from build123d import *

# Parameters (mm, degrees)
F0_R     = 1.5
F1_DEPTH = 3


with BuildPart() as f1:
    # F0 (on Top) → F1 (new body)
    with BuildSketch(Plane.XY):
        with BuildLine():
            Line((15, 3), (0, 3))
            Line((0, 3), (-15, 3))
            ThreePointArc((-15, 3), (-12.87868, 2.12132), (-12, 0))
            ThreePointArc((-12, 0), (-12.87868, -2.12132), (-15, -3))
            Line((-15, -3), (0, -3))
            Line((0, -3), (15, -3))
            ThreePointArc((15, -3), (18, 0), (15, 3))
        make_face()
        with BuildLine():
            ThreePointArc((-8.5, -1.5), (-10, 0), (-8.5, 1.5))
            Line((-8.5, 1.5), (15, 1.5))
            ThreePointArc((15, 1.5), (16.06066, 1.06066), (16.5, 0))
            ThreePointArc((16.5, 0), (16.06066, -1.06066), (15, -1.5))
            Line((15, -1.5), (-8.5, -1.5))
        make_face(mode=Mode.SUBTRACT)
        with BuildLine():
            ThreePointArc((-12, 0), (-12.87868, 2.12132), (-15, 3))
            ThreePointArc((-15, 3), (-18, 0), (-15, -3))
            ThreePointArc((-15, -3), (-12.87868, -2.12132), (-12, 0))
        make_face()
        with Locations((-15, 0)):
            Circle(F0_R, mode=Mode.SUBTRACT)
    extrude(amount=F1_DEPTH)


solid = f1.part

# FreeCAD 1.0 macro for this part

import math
import FreeCAD as App
import Part
import Sketcher

V = App.Vector

doc = App.newDocument("Part")
body = doc.addObject("PartDesign::Body", "Body")

# Sketch on XY plane
sketch1 = body.newObject("Sketcher::SketchObject", "Sketch")
sketch1.AttachmentSupport = (doc.getObject("XY_Plane"), [""])
sketch1.MapMode = "FlatFace"
sketch1.addGeometry([
    Part.LineSegment(V(15, 3, 0), V(-15, 3, 0)),  # 0
    Part.ArcOfCircle(Part.Circle(V(-15, 0, 0), V(0, 0, 1), 3), math.radians(90), math.radians(270)),  # 1
    Part.LineSegment(V(-15, -3, 0), V(15, -3, 0)),  # 2
    Part.ArcOfCircle(Part.Circle(V(15, 0, 0), V(0, 0, 1), 3), math.radians(-90), math.radians(90)),  # 3
    Part.Circle(V(-15, 0, 0), V(0, 0, 1), 1.5),  # 4
    Part.LineSegment(V(15, -1.5, 0), V(-8.5, -1.5, 0)),  # 5
    Part.ArcOfCircle(Part.Circle(V(-8.5, 0, 0), V(0, 0, 1), 1.5), math.radians(90), math.radians(270)),  # 6
    Part.LineSegment(V(-8.5, 1.5, 0), V(15, 1.5, 0)),  # 7
    Part.ArcOfCircle(Part.Circle(V(15, 0, 0), V(0, 0, 1), 1.5), math.radians(0), math.radians(90)),  # 8
    Part.ArcOfCircle(Part.Circle(V(15, 0, 0), V(0, 0, 1), 1.5), math.radians(-90), math.radians(0)),  # 9
], False)
sketch1.addConstraint([
    Sketcher.Constraint("Tangent", 0, 2, 1, 1),
    Sketcher.Constraint("Tangent", 1, 2, 2, 1),
    Sketcher.Constraint("Tangent", 2, 2, 3, 1),
    Sketcher.Constraint("Tangent", 3, 2, 0, 1),
    Sketcher.Constraint("Tangent", 5, 2, 6, 2),
    Sketcher.Constraint("Tangent", 6, 1, 7, 1),
    Sketcher.Constraint("Tangent", 7, 2, 8, 2),
    Sketcher.Constraint("Tangent", 8, 1, 9, 2),
    Sketcher.Constraint("Tangent", 9, 1, 5, 1),
    Sketcher.Constraint("Horizontal", 0),
    Sketcher.Constraint("Horizontal", 2),
    Sketcher.Constraint("Horizontal", 5),
    Sketcher.Constraint("Horizontal", 7),
    Sketcher.Constraint("Coincident", 4, 3, 1, 3),
    Sketcher.Constraint("Coincident", 8, 3, 3, 3),
    Sketcher.Constraint("Equal", 4, 6),
    Sketcher.Constraint("Equal", 6, 8),
    Sketcher.Constraint("Symmetric", 1, 3, 3, 3, -1, 1),
    Sketcher.Constraint("PointOnObject", 8, 1, -1),
    Sketcher.Constraint("Diameter", 4, 3.0),
    Sketcher.Constraint("Radius", 1, 3.0),
    Sketcher.Constraint("DistanceX", 0, 2, 0, 1, 30.0),
    Sketcher.Constraint("DistanceX", 5, 2, 5, 1, 23.5),
])
pad1 = body.newObject("PartDesign::Pad", "Pad")
pad1.Profile = sketch1
pad1.Length = 3

doc.recompute()
